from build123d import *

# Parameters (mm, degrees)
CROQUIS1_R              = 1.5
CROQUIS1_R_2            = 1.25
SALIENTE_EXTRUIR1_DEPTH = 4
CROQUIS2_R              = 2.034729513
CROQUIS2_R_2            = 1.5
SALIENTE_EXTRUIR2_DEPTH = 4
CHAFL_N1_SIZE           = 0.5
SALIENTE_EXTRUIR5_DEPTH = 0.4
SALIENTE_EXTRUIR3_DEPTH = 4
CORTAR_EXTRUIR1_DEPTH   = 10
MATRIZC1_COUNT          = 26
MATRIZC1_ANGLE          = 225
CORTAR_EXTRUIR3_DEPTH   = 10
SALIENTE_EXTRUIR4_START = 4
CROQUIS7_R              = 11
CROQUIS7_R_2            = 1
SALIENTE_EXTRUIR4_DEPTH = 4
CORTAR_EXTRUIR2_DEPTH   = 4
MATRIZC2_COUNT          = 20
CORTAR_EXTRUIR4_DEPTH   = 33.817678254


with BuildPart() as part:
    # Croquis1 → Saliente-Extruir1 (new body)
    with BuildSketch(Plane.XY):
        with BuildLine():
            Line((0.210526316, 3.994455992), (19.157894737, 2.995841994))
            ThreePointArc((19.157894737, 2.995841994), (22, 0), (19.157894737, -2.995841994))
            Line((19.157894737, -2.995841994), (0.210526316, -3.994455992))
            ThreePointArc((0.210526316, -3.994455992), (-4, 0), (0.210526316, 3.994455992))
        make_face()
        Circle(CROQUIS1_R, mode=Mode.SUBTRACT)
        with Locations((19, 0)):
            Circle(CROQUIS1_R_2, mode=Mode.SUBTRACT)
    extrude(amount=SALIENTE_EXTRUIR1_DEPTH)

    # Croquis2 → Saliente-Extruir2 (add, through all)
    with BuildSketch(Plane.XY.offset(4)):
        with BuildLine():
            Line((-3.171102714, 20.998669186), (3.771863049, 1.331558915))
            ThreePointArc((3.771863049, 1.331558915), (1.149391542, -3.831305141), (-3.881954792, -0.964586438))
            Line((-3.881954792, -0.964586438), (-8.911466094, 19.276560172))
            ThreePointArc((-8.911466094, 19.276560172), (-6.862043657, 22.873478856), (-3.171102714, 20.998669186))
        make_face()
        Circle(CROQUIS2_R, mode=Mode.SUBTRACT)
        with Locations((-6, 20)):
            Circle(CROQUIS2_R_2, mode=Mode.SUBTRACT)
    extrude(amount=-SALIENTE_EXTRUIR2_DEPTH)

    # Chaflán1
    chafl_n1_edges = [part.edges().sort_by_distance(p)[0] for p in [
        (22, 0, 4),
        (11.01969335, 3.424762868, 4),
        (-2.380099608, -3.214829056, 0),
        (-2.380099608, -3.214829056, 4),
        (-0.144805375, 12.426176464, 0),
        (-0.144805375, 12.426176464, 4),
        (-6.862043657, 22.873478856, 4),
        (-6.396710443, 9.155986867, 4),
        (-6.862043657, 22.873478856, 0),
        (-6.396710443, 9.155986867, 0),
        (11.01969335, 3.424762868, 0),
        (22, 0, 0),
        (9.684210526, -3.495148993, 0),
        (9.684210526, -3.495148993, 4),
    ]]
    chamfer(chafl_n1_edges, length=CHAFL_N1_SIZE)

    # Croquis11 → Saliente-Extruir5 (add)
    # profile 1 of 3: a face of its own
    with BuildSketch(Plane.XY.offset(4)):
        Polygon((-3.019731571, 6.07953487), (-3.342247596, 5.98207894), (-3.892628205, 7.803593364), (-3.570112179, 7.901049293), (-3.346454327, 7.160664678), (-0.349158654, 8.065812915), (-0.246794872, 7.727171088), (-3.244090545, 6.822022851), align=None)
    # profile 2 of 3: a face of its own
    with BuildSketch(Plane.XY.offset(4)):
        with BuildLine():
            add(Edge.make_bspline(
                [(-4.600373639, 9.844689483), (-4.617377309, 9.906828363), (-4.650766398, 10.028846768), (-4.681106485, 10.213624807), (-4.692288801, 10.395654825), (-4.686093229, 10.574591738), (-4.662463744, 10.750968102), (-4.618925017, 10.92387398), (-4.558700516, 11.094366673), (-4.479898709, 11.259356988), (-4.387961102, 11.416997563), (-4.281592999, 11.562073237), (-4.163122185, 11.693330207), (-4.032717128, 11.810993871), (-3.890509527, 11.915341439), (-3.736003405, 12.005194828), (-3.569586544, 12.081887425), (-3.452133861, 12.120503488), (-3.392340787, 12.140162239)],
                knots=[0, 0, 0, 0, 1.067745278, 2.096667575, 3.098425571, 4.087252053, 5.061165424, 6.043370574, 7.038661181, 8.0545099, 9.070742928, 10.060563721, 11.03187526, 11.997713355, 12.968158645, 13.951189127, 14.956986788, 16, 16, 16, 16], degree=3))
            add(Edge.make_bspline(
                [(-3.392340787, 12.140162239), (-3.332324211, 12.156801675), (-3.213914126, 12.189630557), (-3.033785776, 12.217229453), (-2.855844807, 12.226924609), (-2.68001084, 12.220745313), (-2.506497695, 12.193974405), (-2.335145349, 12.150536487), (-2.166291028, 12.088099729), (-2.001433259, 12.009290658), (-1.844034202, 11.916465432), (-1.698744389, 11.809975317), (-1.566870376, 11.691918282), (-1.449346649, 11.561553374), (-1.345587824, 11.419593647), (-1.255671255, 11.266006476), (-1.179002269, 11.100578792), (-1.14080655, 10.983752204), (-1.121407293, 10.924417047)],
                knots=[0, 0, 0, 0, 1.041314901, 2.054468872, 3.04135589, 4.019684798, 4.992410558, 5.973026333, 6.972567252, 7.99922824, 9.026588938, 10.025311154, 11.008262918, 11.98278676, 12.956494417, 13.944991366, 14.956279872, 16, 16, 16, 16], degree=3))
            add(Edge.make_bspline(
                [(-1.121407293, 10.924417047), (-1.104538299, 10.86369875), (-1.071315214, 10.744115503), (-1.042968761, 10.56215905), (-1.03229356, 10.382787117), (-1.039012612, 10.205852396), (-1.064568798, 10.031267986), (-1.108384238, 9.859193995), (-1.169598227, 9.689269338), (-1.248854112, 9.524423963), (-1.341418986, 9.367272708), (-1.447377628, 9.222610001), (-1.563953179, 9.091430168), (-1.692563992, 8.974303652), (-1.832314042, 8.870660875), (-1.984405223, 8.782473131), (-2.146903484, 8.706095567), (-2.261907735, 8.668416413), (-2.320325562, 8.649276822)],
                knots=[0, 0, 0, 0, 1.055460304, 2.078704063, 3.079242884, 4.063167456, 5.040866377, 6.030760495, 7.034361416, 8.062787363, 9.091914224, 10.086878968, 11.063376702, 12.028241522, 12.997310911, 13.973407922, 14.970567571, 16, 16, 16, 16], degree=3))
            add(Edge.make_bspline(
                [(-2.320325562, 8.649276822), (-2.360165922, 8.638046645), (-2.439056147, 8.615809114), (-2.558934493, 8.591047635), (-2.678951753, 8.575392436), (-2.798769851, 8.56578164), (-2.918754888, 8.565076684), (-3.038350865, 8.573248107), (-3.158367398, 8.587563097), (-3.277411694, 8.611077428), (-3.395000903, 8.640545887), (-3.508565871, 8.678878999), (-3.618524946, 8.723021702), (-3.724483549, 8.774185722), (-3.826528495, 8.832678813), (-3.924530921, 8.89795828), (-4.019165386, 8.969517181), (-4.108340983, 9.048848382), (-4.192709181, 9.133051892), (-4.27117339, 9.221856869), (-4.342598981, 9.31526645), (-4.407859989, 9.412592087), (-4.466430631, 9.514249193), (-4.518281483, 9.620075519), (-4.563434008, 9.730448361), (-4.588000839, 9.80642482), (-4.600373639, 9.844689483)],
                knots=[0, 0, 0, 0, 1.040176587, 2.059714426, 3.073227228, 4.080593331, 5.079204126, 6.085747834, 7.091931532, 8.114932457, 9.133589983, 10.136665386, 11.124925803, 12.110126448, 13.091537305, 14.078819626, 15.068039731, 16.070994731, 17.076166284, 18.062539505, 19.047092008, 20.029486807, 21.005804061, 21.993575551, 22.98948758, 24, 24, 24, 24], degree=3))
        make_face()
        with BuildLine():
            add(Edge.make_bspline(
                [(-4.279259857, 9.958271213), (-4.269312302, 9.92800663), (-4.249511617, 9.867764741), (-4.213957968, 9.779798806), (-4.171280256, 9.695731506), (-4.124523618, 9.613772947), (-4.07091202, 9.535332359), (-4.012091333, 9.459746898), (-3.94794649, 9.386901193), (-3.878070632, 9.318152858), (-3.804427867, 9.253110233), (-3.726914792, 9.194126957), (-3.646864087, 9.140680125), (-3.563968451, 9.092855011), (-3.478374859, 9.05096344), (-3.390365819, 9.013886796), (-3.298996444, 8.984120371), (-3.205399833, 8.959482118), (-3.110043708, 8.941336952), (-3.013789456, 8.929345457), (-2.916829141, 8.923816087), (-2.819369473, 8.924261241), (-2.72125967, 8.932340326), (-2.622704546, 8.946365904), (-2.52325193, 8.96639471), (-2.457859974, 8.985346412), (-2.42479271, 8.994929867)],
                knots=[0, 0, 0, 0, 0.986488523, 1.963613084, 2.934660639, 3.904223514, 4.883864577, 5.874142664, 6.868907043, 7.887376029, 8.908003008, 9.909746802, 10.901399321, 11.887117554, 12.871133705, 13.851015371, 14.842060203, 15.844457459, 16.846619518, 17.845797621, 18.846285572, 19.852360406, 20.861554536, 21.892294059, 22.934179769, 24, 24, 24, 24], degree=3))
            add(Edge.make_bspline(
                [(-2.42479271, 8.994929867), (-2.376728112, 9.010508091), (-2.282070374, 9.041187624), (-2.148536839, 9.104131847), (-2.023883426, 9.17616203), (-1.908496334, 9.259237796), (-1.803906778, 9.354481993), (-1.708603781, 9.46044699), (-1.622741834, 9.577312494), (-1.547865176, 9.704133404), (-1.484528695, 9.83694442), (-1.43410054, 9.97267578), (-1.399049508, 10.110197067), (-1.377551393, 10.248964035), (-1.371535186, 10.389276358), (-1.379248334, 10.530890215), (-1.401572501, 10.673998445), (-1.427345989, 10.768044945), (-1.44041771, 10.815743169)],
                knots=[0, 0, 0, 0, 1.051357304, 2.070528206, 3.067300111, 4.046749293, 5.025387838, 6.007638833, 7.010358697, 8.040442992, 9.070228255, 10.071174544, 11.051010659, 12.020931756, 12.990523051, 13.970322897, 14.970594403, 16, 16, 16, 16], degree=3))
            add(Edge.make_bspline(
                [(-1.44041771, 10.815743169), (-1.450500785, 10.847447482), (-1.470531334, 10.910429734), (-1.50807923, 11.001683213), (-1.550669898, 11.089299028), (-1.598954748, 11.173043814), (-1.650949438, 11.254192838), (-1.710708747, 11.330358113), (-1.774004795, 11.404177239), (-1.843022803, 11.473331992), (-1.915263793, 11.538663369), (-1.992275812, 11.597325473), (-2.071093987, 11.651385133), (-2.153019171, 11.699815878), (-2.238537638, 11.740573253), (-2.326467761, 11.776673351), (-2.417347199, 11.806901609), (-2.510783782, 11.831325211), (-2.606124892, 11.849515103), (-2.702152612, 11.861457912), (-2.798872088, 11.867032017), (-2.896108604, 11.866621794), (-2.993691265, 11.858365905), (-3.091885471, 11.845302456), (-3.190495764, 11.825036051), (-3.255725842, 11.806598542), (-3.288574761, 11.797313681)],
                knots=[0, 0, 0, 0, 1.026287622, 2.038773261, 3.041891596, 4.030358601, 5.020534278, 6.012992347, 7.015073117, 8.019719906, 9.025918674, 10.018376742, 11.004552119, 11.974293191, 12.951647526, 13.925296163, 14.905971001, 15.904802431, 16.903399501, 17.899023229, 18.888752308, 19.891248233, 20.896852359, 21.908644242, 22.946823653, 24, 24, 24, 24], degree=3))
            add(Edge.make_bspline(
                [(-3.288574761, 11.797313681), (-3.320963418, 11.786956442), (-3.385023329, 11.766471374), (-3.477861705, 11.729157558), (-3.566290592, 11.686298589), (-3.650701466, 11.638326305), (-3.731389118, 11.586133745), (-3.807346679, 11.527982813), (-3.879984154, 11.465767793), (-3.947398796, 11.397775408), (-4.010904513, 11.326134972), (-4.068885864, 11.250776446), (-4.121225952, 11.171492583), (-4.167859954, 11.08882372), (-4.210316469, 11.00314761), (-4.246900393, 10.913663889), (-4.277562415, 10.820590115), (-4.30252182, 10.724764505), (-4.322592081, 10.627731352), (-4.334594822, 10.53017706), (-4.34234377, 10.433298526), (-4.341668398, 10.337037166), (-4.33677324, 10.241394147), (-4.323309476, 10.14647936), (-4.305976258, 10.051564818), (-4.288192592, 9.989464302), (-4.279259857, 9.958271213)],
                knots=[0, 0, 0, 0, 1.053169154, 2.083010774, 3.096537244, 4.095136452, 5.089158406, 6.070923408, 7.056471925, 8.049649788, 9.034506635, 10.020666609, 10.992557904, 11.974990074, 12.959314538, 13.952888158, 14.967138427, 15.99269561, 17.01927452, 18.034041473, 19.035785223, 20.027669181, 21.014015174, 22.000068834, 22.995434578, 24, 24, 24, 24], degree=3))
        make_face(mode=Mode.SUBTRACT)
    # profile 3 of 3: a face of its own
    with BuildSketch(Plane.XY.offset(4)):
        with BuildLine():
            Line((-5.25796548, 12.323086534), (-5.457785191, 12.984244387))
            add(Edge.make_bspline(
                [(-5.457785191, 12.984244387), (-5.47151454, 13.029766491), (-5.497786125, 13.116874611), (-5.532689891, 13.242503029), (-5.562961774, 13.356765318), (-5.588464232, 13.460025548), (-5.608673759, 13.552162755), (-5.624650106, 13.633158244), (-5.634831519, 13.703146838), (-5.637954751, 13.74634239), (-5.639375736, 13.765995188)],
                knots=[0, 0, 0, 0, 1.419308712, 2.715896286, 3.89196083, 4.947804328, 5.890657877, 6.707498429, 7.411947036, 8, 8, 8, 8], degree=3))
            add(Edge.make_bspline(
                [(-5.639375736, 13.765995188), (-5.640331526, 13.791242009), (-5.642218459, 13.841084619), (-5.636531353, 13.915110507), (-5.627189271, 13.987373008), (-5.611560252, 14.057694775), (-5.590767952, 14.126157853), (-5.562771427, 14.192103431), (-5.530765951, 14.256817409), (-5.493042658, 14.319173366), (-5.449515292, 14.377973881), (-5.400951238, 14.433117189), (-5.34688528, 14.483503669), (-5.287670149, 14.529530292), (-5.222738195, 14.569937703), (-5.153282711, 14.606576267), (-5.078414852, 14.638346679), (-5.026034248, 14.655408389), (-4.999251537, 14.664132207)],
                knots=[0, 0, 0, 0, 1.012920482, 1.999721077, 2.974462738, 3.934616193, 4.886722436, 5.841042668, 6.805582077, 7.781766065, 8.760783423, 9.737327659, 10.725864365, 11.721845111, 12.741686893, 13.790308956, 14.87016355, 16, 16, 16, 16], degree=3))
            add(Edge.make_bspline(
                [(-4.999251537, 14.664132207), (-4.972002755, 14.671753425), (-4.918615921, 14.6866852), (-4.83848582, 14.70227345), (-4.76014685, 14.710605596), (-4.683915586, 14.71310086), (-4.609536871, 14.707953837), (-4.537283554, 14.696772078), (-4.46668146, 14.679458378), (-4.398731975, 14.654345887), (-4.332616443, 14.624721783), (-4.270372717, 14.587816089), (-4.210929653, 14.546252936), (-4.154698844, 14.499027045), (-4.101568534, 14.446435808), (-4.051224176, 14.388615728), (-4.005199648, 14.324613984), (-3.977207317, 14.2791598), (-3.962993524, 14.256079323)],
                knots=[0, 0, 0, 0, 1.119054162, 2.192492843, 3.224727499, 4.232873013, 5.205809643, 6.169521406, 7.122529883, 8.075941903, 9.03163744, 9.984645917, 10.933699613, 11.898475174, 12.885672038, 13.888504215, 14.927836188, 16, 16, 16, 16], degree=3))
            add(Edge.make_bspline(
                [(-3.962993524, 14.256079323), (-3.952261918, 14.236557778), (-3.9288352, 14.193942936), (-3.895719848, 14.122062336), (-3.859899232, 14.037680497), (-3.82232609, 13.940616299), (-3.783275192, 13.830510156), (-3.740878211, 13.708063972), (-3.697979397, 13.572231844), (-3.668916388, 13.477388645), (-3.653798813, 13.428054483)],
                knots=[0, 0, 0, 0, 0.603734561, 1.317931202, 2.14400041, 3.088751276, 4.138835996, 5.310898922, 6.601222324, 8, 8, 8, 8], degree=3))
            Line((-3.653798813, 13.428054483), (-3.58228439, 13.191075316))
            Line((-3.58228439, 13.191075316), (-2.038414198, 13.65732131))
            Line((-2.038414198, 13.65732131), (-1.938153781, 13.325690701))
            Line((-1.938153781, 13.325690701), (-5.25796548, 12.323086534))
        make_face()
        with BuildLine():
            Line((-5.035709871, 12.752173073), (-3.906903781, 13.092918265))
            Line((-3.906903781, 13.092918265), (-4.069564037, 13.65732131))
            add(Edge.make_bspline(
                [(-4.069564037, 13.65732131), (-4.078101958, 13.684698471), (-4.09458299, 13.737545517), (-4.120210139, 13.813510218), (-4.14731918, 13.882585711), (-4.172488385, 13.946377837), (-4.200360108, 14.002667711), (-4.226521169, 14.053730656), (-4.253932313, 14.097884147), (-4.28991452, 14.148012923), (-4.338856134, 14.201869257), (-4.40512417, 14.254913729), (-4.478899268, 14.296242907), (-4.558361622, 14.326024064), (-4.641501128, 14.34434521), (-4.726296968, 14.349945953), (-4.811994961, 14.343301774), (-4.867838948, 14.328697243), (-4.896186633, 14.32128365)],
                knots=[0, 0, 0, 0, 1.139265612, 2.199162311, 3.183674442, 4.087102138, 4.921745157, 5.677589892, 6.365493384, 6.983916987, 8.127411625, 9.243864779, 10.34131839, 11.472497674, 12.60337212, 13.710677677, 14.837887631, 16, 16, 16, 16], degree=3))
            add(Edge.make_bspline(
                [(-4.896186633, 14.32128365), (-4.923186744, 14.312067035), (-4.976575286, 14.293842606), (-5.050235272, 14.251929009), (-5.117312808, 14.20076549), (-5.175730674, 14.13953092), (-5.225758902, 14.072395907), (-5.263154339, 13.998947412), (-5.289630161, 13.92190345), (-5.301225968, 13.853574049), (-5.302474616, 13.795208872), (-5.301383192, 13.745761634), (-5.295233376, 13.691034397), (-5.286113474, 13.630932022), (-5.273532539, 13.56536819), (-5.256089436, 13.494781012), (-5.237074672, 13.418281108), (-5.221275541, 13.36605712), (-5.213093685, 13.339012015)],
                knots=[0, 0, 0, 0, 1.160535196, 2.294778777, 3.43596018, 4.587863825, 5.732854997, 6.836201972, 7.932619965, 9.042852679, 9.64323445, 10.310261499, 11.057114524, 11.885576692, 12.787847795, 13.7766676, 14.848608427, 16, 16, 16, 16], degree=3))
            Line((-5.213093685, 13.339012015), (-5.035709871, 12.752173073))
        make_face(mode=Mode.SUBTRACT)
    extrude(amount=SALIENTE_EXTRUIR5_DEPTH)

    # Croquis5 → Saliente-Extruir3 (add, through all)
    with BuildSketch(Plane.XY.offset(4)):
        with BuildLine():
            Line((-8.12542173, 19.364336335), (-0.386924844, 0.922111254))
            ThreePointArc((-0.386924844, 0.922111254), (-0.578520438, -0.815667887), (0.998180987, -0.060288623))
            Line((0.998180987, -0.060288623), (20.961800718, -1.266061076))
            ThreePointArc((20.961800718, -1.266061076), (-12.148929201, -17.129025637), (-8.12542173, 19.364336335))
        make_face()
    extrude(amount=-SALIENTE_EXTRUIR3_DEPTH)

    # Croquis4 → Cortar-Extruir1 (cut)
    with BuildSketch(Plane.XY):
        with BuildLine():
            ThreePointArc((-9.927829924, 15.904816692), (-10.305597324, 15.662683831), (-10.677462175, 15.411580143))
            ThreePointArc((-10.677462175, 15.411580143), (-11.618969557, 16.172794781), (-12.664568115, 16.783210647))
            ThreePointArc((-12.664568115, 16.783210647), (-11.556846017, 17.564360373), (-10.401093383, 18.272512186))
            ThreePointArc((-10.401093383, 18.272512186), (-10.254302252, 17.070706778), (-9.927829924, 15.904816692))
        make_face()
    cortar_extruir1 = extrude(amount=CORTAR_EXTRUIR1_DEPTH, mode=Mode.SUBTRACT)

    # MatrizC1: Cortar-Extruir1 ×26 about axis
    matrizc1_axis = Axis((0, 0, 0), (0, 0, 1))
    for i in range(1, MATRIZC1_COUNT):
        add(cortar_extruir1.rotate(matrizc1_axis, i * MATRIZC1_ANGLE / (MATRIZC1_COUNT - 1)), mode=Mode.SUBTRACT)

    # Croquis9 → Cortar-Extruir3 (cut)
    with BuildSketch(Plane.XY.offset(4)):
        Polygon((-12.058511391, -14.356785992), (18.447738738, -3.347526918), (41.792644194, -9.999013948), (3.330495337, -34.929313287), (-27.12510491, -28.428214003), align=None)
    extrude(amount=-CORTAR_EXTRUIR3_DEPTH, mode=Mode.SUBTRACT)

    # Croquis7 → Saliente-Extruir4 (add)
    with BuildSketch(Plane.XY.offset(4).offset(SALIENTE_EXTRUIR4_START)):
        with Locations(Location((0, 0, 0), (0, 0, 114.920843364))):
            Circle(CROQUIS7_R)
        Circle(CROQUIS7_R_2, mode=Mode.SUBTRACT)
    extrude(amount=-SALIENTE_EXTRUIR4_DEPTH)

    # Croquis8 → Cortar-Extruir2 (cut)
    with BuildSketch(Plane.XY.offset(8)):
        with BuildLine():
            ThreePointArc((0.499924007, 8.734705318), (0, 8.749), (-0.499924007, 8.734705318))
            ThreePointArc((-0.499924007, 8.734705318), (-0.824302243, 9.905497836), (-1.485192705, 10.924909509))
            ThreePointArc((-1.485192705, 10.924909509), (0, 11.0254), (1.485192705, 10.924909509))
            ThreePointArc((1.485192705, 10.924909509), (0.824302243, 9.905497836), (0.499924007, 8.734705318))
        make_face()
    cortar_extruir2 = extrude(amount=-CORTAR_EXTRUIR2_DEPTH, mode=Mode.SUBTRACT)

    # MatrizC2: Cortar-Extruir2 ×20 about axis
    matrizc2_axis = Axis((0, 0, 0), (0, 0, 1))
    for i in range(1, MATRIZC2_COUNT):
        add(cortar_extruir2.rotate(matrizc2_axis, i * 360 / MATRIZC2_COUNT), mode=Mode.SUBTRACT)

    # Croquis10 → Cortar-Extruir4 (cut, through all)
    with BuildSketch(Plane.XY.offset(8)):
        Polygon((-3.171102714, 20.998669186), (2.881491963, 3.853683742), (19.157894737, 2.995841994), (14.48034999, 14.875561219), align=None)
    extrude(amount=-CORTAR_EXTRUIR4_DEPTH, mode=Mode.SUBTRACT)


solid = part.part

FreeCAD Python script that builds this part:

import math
import FreeCAD as App
import Part
import Sketcher
from FreeCAD import Vector


def edges_at(feature, points):
    """Names of the edges that pass closest to the given points."""
    edges = feature.Shape.Edges
    near = lambda p: min(range(len(edges)), key=lambda i: edges[i].distToShape(Part.Vertex(*p))[0])
    return sorted({f"Edge{near(p) + 1}" for p in points})


def add_polygon(sketch, points):
    """Adds a closed chain of lines whose ends are joined by coincident constraints."""
    first, n = sketch.GeometryCount, len(points)
    for a, b in zip(points, points[1:] + points[:1]):
        sketch.addGeometry(Part.LineSegment(App.Vector(*a, 0), App.Vector(*b, 0)), False)
    for i in range(n):
        sketch.addConstraint(Sketcher.Constraint("Coincident", first + i, 2, first + (i + 1) % n, 1))

doc = App.newDocument("Part")
params = doc.addObject("Spreadsheet::Sheet", "Params")
for row, (alias, value) in enumerate([
    ("sketch1_diameter", "3 mm"),
    ("sketch1_radius", "4 mm"),
    ("sketch1_radius2", "3 mm"),
    ("sketch1_diameter2", "2.5 mm"),
    ("pad1_length", "4 mm"),
    ("sketch2_diameter", "3 mm"),
    ("sketch2_radius", "3 mm"),
    ("sketch2_radius2", "4 mm"),
    ("pad2_length", "4 mm"),
    ("chamfer_size", "0.5 mm"),
    ("pad3_length", "0.4 mm"),
    ("sketch4_radius", "21 mm"),
    ("sketch4_radius2", "1 mm"),
    ("pad4_length", "4 mm"),
    ("sketch5_radius", "8 mm"),
    ("pocket1_length", "10 mm"),
    ("pocket2_length", "10 mm"),
    ("sketch7_diameter", "22 mm"),
    ("sketch7_diameter2", "2 mm"),
    ("pad5_length", "4 mm"),
    ("sketch8_radius", "4 mm"),
    ("pocket3_length", "4 mm"),
], start=1):
    params.set(f"A{row}", alias)
    params.set(f"B{row}", "=" + value)
    params.setAlias(f"B{row}", alias)

body = doc.addObject("PartDesign::Body", "Body")

sketch1 = doc.addObject("Sketcher::SketchObject", "Sketch")
body.addObject(sketch1)
sketch1.AttachmentSupport = (doc.XY_Plane, [""])
sketch1.MapMode = "FlatFace"
sketch1.addGeometry([
    Part.LineSegment(Vector(19.2, 3, 0), Vector(0.2, 4, 0)),
    Part.ArcOfCircle(Part.Circle(Vector(0, 0, 0), Vector(0, 0, 1), 4), math.radians(87), math.radians(273)),
    Part.LineSegment(Vector(0.2, -4, 0), Vector(19.2, -3, 0)),
    Part.ArcOfCircle(Part.Circle(Vector(19, 0, 0), Vector(0, 0, 1), 3), math.radians(-87), math.radians(87)),
    Part.Circle(Vector(19, 0, 0), Vector(0, 0, 1), 1.2),
    Part.Circle(Vector(0, 0, 0), Vector(0, 0, 1), 1.5),
], False)
sketch1.addConstraint([
    Sketcher.Constraint("Tangent", 0, 2, 1, 1),
    Sketcher.Constraint("Tangent", 1, 2, 2, 1),
    Sketcher.Constraint("Tangent", 2, 2, 3, 1),
    Sketcher.Constraint("Tangent", 3, 2, 0, 1),
    Sketcher.Constraint("Coincident", 1, 3, -1, 1),
    Sketcher.Constraint("Coincident", 5, 3, -1, 1),
    Sketcher.Constraint("Coincident", 4, 3, 3, 3),
    Sketcher.Constraint("PointOnObject", 3, 3, -1),
    Sketcher.Constraint("Diameter", 5, 3.0),
    Sketcher.Constraint("Radius", 1, 4.0),
    Sketcher.Constraint("Radius", 3, 3.0),
    Sketcher.Constraint("Diameter", 4, 2.5),
    Sketcher.Constraint("DistanceX", -1, 1, 3, 3, 19.0),
])
sketch1.setExpression("Constraints[8]", "Params.sketch1_diameter")
sketch1.setExpression("Constraints[9]", "Params.sketch1_radius")
sketch1.setExpression("Constraints[10]", "Params.sketch1_radius2")
sketch1.setExpression("Constraints[11]", "Params.sketch1_diameter2")
pad1 = doc.addObject("PartDesign::Pad", "Pad")
body.addObject(pad1)
pad1.Profile = sketch1
pad1.setExpression("Length", "Params.pad1_length")

sketch2 = doc.addObject("Sketcher::SketchObject", "Sketch001")
body.addObject(sketch2)
sketch2.AttachmentSupport = (doc.XY_Plane, [""])
sketch2.MapMode = "FlatFace"
sketch2.AttachmentOffset = App.Placement(Vector(0, 0, 4), App.Rotation())
sketch2.addGeometry([
    Part.LineSegment(Vector(3.8, 1.3, 0), Vector(-3.2, 21, 0)),
    Part.ArcOfCircle(Part.Circle(Vector(-6, 20, 0), Vector(0, 0, 1), 3), math.radians(19), math.radians(194)),
    Part.LineSegment(Vector(-8.9, 19.3, 0), Vector(-3.9, -1, 0)),
    Part.ArcOfCircle(Part.Circle(Vector(0, 0, 0), Vector(0, 0, 1), 4), math.radians(-166), math.radians(19)),
    Part.Circle(Vector(0, 0, 0), Vector(0, 0, 1), 2),
    Part.Circle(Vector(-6, 20, 0), Vector(0, 0, 1), 1.5),
], False)
sketch2.addConstraint([
    Sketcher.Constraint("Tangent", 0, 2, 1, 1),
    Sketcher.Constraint("Tangent", 1, 2, 2, 1),
    Sketcher.Constraint("Tangent", 2, 2, 3, 1),
    Sketcher.Constraint("Tangent", 3, 2, 0, 1),
    Sketcher.Constraint("Coincident", 3, 3, -1, 1),
    Sketcher.Constraint("Coincident", 4, 3, -1, 1),
    Sketcher.Constraint("Coincident", 5, 3, 1, 3),
    Sketcher.Constraint("Diameter", 5, 3.0),
    Sketcher.Constraint("Radius", 1, 3.0),
    Sketcher.Constraint("Radius", 3, 4.0),
    Sketcher.Constraint("DistanceX", 1, 3, -1, 1, 6.0),
    Sketcher.Constraint("DistanceY", -1, 1, 1, 3, 20.0),
    Sketcher.Constraint("Diameter", 4, 4.069459),
])
sketch2.setExpression("Constraints[7]", "Params.sketch2_diameter")
sketch2.setExpression("Constraints[8]", "Params.sketch2_radius")
sketch2.setExpression("Constraints[9]", "Params.sketch2_radius2")
pad2 = doc.addObject("PartDesign::Pad", "Pad001")
body.addObject(pad2)
pad2.Profile = sketch2
pad2.setExpression("Length", "Params.pad2_length")
pad2.Reversed = True
doc.recompute()

chamfer = doc.addObject("PartDesign::Chamfer", "Chamfer")
body.addObject(chamfer)
chamfer.Base = (pad2, edges_at(pad2, [
    (22, 0, 4),
    (11.02, 3.425, 4),
    (-2.38, -3.215, 0),
    (-2.38, -3.215, 4),
    (-0.145, 12.426, 0),
    (-0.145, 12.426, 4),
    (-6.862, 22.873, 4),
    (-6.397, 9.156, 4),
    (-6.862, 22.873, 0),
    (-6.397, 9.156, 0),
    (11.02, 3.425, 0),
    (22, 0, 0),
    (9.684, -3.495, 0),
    (9.684, -3.495, 4),
]))
chamfer.setExpression("Size", "Params.chamfer_size")

sketch3 = doc.addObject("Sketcher::SketchObject", "Sketch002")
body.addObject(sketch3)
sketch3.AttachmentSupport = (doc.XY_Plane, [""])
sketch3.MapMode = "FlatFace"
sketch3.AttachmentOffset = App.Placement(Vector(0, 0, 4), App.Rotation())
add_polygon(sketch3, [(-3.342248, 5.982079), (-3.019732, 6.079535), (-3.244091, 6.822023), (-0.246795, 7.727171), (-0.349159, 8.065813), (-3.346454, 7.160665), (-3.570112, 7.901049), (-3.892628, 7.803593)])
sketch3.addGeometry(Part.BSplineCurve([Vector(-4.600374, 9.844689, 0), Vector(-4.617377, 9.906828, 0), Vector(-4.650766, 10.028847, 0), Vector(-4.681106, 10.213625, 0), Vector(-4.692289, 10.395655, 0), Vector(-4.686093, 10.574592, 0), Vector(-4.662464, 10.750968, 0), Vector(-4.618925, 10.923874, 0), Vector(-4.558701, 11.094367, 0), Vector(-4.479899, 11.259357, 0), Vector(-4.387961, 11.416998, 0), Vector(-4.281593, 11.562073, 0), Vector(-4.163122, 11.69333, 0), Vector(-4.032717, 11.810994, 0), Vector(-3.89051, 11.915341, 0), Vector(-3.736003, 12.005195, 0), Vector(-3.569587, 12.081887, 0), Vector(-3.452134, 12.120503, 0), Vector(-3.392341, 12.140162, 0)], [4, 1, 1, 1, 1, 1, 1, 1, 1, 1, 1, 1, 1, 1, 1, 1, 4], [0, 1.067745278, 2.096667575, 3.098425571, 4.087252053, 5.061165424, 6.043370574, 7.038661181, 8.0545099, 9.070742928, 10.060563721, 11.03187526, 11.997713355, 12.968158645, 13.951189127, 14.956986788, 16], False, 3, [1, 1, 1, 1, 1, 1, 1, 1, 1, 1, 1, 1, 1, 1, 1, 1, 1, 1, 1], False), False)
sketch3.addGeometry(Part.BSplineCurve([Vector(-2.320326, 8.649277, 0), Vector(-2.360166, 8.638047, 0), Vector(-2.439056, 8.615809, 0), Vector(-2.558934, 8.591048, 0), Vector(-2.678952, 8.575392, 0), Vector(-2.79877, 8.565782, 0), Vector(-2.918755, 8.565077, 0), Vector(-3.038351, 8.573248, 0), Vector(-3.158367, 8.587563, 0), Vector(-3.277412, 8.611077, 0), Vector(-3.395001, 8.640546, 0), Vector(-3.508566, 8.678879, 0), Vector(-3.618525, 8.723022, 0), Vector(-3.724484, 8.774186, 0), Vector(-3.826528, 8.832679, 0), Vector(-3.924531, 8.897958, 0), Vector(-4.019165, 8.969517, 0), Vector(-4.108341, 9.048848, 0), Vector(-4.192709, 9.133052, 0), Vector(-4.271173, 9.221857, 0), Vector(-4.342599, 9.315266, 0), Vector(-4.40786, 9.412592, 0), Vector(-4.466431, 9.514249, 0), Vector(-4.518281, 9.620076, 0), Vector(-4.563434, 9.730448, 0), Vector(-4.588001, 9.806425, 0), Vector(-4.600374, 9.844689, 0)], [4, 1, 1, 1, 1, 1, 1, 1, 1, 1, 1, 1, 1, 1, 1, 1, 1, 1, 1, 1, 1, 1, 1, 1, 4], [0, 1.040176587, 2.059714426, 3.073227228, 4.080593331, 5.079204126, 6.085747834, 7.091931532, 8.114932457, 9.133589983, 10.136665386, 11.124925803, 12.110126448, 13.091537305, 14.078819626, 15.068039731, 16.070994731, 17.076166284, 18.062539505, 19.047092008, 20.029486807, 21.005804061, 21.993575551, 22.98948758, 24], False, 3, [1, 1, 1, 1, 1, 1, 1, 1, 1, 1, 1, 1, 1, 1, 1, 1, 1, 1, 1, 1, 1, 1, 1, 1, 1, 1, 1], False), False)
sketch3.addGeometry(Part.BSplineCurve([Vector(-1.121407, 10.924417, 0), Vector(-1.104538, 10.863699, 0), Vector(-1.071315, 10.744116, 0), Vector(-1.042969, 10.562159, 0), Vector(-1.032294, 10.382787, 0), Vector(-1.039013, 10.205852, 0), Vector(-1.064569, 10.031268, 0), Vector(-1.108384, 9.859194, 0), Vector(-1.169598, 9.689269, 0), Vector(-1.248854, 9.524424, 0), Vector(-1.341419, 9.367273, 0), Vector(-1.447378, 9.22261, 0), Vector(-1.563953, 9.09143, 0), Vector(-1.692564, 8.974304, 0), Vector(-1.832314, 8.870661, 0), Vector(-1.984405, 8.782473, 0), Vector(-2.146903, 8.706096, 0), Vector(-2.261908, 8.668416, 0), Vector(-2.320326, 8.649277, 0)], [4, 1, 1, 1, 1, 1, 1, 1, 1, 1, 1, 1, 1, 1, 1, 1, 4], [0, 1.055460304, 2.078704063, 3.079242884, 4.063167456, 5.040866377, 6.030760495, 7.034361416, 8.062787363, 9.091914224, 10.086878968, 11.063376702, 12.028241522, 12.997310911, 13.973407922, 14.970567571, 16], False, 3, [1, 1, 1, 1, 1, 1, 1, 1, 1, 1, 1, 1, 1, 1, 1, 1, 1, 1, 1], False), False)
sketch3.addGeometry(Part.BSplineCurve([Vector(-3.392341, 12.140162, 0), Vector(-3.332324, 12.156802, 0), Vector(-3.213914, 12.189631, 0), Vector(-3.033786, 12.217229, 0), Vector(-2.855845, 12.226925, 0), Vector(-2.680011, 12.220745, 0), Vector(-2.506498, 12.193974, 0), Vector(-2.335145, 12.150536, 0), Vector(-2.166291, 12.0881, 0), Vector(-2.001433, 12.009291, 0), Vector(-1.844034, 11.916465, 0), Vector(-1.698744, 11.809975, 0), Vector(-1.56687, 11.691918, 0), Vector(-1.449347, 11.561553, 0), Vector(-1.345588, 11.419594, 0), Vector(-1.255671, 11.266006, 0), Vector(-1.179002, 11.100579, 0), Vector(-1.140807, 10.983752, 0), Vector(-1.121407, 10.924417, 0)], [4, 1, 1, 1, 1, 1, 1, 1, 1, 1, 1, 1, 1, 1, 1, 1, 4], [0, 1.041314901, 2.054468872, 3.04135589, 4.019684798, 4.992410558, 5.973026333, 6.972567252, 7.99922824, 9.026588938, 10.025311154, 11.008262918, 11.98278676, 12.956494417, 13.944991366, 14.956279872, 16], False, 3, [1, 1, 1, 1, 1, 1, 1, 1, 1, 1, 1, 1, 1, 1, 1, 1, 1, 1, 1], False), False)
sketch3.addGeometry(Part.BSplineCurve([Vector(-3.288575, 11.797314, 0), Vector(-3.320963, 11.786956, 0), Vector(-3.385023, 11.766471, 0), Vector(-3.477862, 11.729158, 0), Vector(-3.566291, 11.686299, 0), Vector(-3.650701, 11.638326, 0), Vector(-3.731389, 11.586134, 0), Vector(-3.807347, 11.527983, 0), Vector(-3.879984, 11.465768, 0), Vector(-3.947399, 11.397775, 0), Vector(-4.010905, 11.326135, 0), Vector(-4.068886, 11.250776, 0), Vector(-4.121226, 11.171493, 0), Vector(-4.16786, 11.088824, 0), Vector(-4.210316, 11.003148, 0), Vector(-4.2469, 10.913664, 0), Vector(-4.277562, 10.82059, 0), Vector(-4.302522, 10.724765, 0), Vector(-4.322592, 10.627731, 0), Vector(-4.334595, 10.530177, 0), Vector(-4.342344, 10.433299, 0), Vector(-4.341668, 10.337037, 0), Vector(-4.336773, 10.241394, 0), Vector(-4.323309, 10.146479, 0), Vector(-4.305976, 10.051565, 0), Vector(-4.288193, 9.989464, 0), Vector(-4.27926, 9.958271, 0)], [4, 1, 1, 1, 1, 1, 1, 1, 1, 1, 1, 1, 1, 1, 1, 1, 1, 1, 1, 1, 1, 1, 1, 1, 4], [0, 1.053169154, 2.083010774, 3.096537244, 4.095136452, 5.089158406, 6.070923408, 7.056471925, 8.049649788, 9.034506635, 10.020666609, 10.992557904, 11.974990074, 12.959314538, 13.952888158, 14.967138427, 15.99269561, 17.01927452, 18.034041473, 19.035785223, 20.027669181, 21.014015174, 22.000068834, 22.995434578, 24], False, 3, [1, 1, 1, 1, 1, 1, 1, 1, 1, 1, 1, 1, 1, 1, 1, 1, 1, 1, 1, 1, 1, 1, 1, 1, 1, 1, 1], False), False)
sketch3.addGeometry(Part.BSplineCurve([Vector(-1.440418, 10.815743, 0), Vector(-1.450501, 10.847447, 0), Vector(-1.470531, 10.91043, 0), Vector(-1.508079, 11.001683, 0), Vector(-1.55067, 11.089299, 0), Vector(-1.598955, 11.173044, 0), Vector(-1.650949, 11.254193, 0), Vector(-1.710709, 11.330358, 0), Vector(-1.774005, 11.404177, 0), Vector(-1.843023, 11.473332, 0), Vector(-1.915264, 11.538663, 0), Vector(-1.992276, 11.597325, 0), Vector(-2.071094, 11.651385, 0), Vector(-2.153019, 11.699816, 0), Vector(-2.238538, 11.740573, 0), Vector(-2.326468, 11.776673, 0), Vector(-2.417347, 11.806902, 0), Vector(-2.510784, 11.831325, 0), Vector(-2.606125, 11.849515, 0), Vector(-2.702153, 11.861458, 0), Vector(-2.798872, 11.867032, 0), Vector(-2.896109, 11.866622, 0), Vector(-2.993691, 11.858366, 0), Vector(-3.091885, 11.845302, 0), Vector(-3.190496, 11.825036, 0), Vector(-3.255726, 11.806599, 0), Vector(-3.288575, 11.797314, 0)], [4, 1, 1, 1, 1, 1, 1, 1, 1, 1, 1, 1, 1, 1, 1, 1, 1, 1, 1, 1, 1, 1, 1, 1, 4], [0, 1.026287622, 2.038773261, 3.041891596, 4.030358601, 5.020534278, 6.012992347, 7.015073117, 8.019719906, 9.025918674, 10.018376742, 11.004552119, 11.974293191, 12.951647526, 13.925296163, 14.905971001, 15.904802431, 16.903399501, 17.899023229, 18.888752308, 19.891248233, 20.896852359, 21.908644242, 22.946823653, 24], False, 3, [1, 1, 1, 1, 1, 1, 1, 1, 1, 1, 1, 1, 1, 1, 1, 1, 1, 1, 1, 1, 1, 1, 1, 1, 1, 1, 1], False), False)
sketch3.addGeometry(Part.BSplineCurve([Vector(-2.424793, 8.99493, 0), Vector(-2.376728, 9.010508, 0), Vector(-2.28207, 9.041188, 0), Vector(-2.148537, 9.104132, 0), Vector(-2.023883, 9.176162, 0), Vector(-1.908496, 9.259238, 0), Vector(-1.803907, 9.354482, 0), Vector(-1.708604, 9.460447, 0), Vector(-1.622742, 9.577312, 0), Vector(-1.547865, 9.704133, 0), Vector(-1.484529, 9.836944, 0), Vector(-1.434101, 9.972676, 0), Vector(-1.39905, 10.110197, 0), Vector(-1.377551, 10.248964, 0), Vector(-1.371535, 10.389276, 0), Vector(-1.379248, 10.53089, 0), Vector(-1.401573, 10.673998, 0), Vector(-1.427346, 10.768045, 0), Vector(-1.440418, 10.815743, 0)], [4, 1, 1, 1, 1, 1, 1, 1, 1, 1, 1, 1, 1, 1, 1, 1, 4], [0, 1.051357304, 2.070528206, 3.067300111, 4.046749293, 5.025387838, 6.007638833, 7.010358697, 8.040442992, 9.070228255, 10.071174544, 11.051010659, 12.020931756, 12.990523051, 13.970322897, 14.970594403, 16], False, 3, [1, 1, 1, 1, 1, 1, 1, 1, 1, 1, 1, 1, 1, 1, 1, 1, 1, 1, 1], False), False)
sketch3.addGeometry(Part.BSplineCurve([Vector(-4.27926, 9.958271, 0), Vector(-4.269312, 9.928007, 0), Vector(-4.249512, 9.867765, 0), Vector(-4.213958, 9.779799, 0), Vector(-4.17128, 9.695732, 0), Vector(-4.124524, 9.613773, 0), Vector(-4.070912, 9.535332, 0), Vector(-4.012091, 9.459747, 0), Vector(-3.947946, 9.386901, 0), Vector(-3.878071, 9.318153, 0), Vector(-3.804428, 9.25311, 0), Vector(-3.726915, 9.194127, 0), Vector(-3.646864, 9.14068, 0), Vector(-3.563968, 9.092855, 0), Vector(-3.478375, 9.050963, 0), Vector(-3.390366, 9.013887, 0), Vector(-3.298996, 8.98412, 0), Vector(-3.2054, 8.959482, 0), Vector(-3.110044, 8.941337, 0), Vector(-3.013789, 8.929345, 0), Vector(-2.916829, 8.923816, 0), Vector(-2.819369, 8.924261, 0), Vector(-2.72126, 8.93234, 0), Vector(-2.622705, 8.946366, 0), Vector(-2.523252, 8.966395, 0), Vector(-2.45786, 8.985346, 0), Vector(-2.424793, 8.99493, 0)], [4, 1, 1, 1, 1, 1, 1, 1, 1, 1, 1, 1, 1, 1, 1, 1, 1, 1, 1, 1, 1, 1, 1, 1, 4], [0, 0.986488523, 1.963613084, 2.934660639, 3.904223514, 4.883864577, 5.874142664, 6.868907043, 7.887376029, 8.908003008, 9.909746802, 10.901399321, 11.887117554, 12.871133705, 13.851015371, 14.842060203, 15.844457459, 16.846619518, 17.845797621, 18.846285572, 19.852360406, 20.861554536, 21.892294059, 22.934179769, 24], False, 3, [1, 1, 1, 1, 1, 1, 1, 1, 1, 1, 1, 1, 1, 1, 1, 1, 1, 1, 1, 1, 1, 1, 1, 1, 1, 1, 1], False), False)
sketch3.addGeometry(Part.LineSegment(Vector(-5.457785, 12.984244, 0), Vector(-5.257965, 12.323087, 0)), False)
sketch3.addGeometry(Part.LineSegment(Vector(-5.257965, 12.323087, 0), Vector(-1.938154, 13.325691, 0)), False)
sketch3.addGeometry(Part.LineSegment(Vector(-1.938154, 13.325691, 0), Vector(-2.038414, 13.657321, 0)), False)
sketch3.addGeometry(Part.LineSegment(Vector(-2.038414, 13.657321, 0), Vector(-3.582284, 13.191075, 0)), False)
sketch3.addGeometry(Part.LineSegment(Vector(-3.582284, 13.191075, 0), Vector(-3.653799, 13.428054, 0)), False)
sketch3.addGeometry(Part.BSplineCurve([Vector(-3.962994, 14.256079, 0), Vector(-3.952262, 14.236558, 0), Vector(-3.928835, 14.193943, 0), Vector(-3.89572, 14.122062, 0), Vector(-3.859899, 14.03768, 0), Vector(-3.822326, 13.940616, 0), Vector(-3.783275, 13.83051, 0), Vector(-3.740878, 13.708064, 0), Vector(-3.697979, 13.572232, 0), Vector(-3.668916, 13.477389, 0), Vector(-3.653799, 13.428054, 0)], [4, 1, 1, 1, 1, 1, 1, 1, 4], [0, 0.603734561, 1.317931202, 2.14400041, 3.088751276, 4.138835996, 5.310898922, 6.601222324, 8], False, 3, [1, 1, 1, 1, 1, 1, 1, 1, 1, 1, 1], False), False)
sketch3.addGeometry(Part.BSplineCurve([Vector(-4.999252, 14.664132, 0), Vector(-4.972003, 14.671753, 0), Vector(-4.918616, 14.686685, 0), Vector(-4.838486, 14.702273, 0), Vector(-4.760147, 14.710606, 0), Vector(-4.683916, 14.713101, 0), Vector(-4.609537, 14.707954, 0), Vector(-4.537284, 14.696772, 0), Vector(-4.466681, 14.679458, 0), Vector(-4.398732, 14.654346, 0), Vector(-4.332616, 14.624722, 0), Vector(-4.270373, 14.587816, 0), Vector(-4.21093, 14.546253, 0), Vector(-4.154699, 14.499027, 0), Vector(-4.101569, 14.446436, 0), Vector(-4.051224, 14.388616, 0), Vector(-4.0052, 14.324614, 0), Vector(-3.977207, 14.27916, 0), Vector(-3.962994, 14.256079, 0)], [4, 1, 1, 1, 1, 1, 1, 1, 1, 1, 1, 1, 1, 1, 1, 1, 4], [0, 1.119054162, 2.192492843, 3.224727499, 4.232873013, 5.205809643, 6.169521406, 7.122529883, 8.075941903, 9.03163744, 9.984645917, 10.933699613, 11.898475174, 12.885672038, 13.888504215, 14.927836188, 16], False, 3, [1, 1, 1, 1, 1, 1, 1, 1, 1, 1, 1, 1, 1, 1, 1, 1, 1, 1, 1], False), False)
sketch3.addGeometry(Part.BSplineCurve([Vector(-5.639376, 13.765995, 0), Vector(-5.640332, 13.791242, 0), Vector(-5.642218, 13.841085, 0), Vector(-5.636531, 13.915111, 0), Vector(-5.627189, 13.987373, 0), Vector(-5.61156, 14.057695, 0), Vector(-5.590768, 14.126158, 0), Vector(-5.562771, 14.192103, 0), Vector(-5.530766, 14.256817, 0), Vector(-5.493043, 14.319173, 0), Vector(-5.449515, 14.377974, 0), Vector(-5.400951, 14.433117, 0), Vector(-5.346885, 14.483504, 0), Vector(-5.28767, 14.52953, 0), Vector(-5.222738, 14.569938, 0), Vector(-5.153283, 14.606576, 0), Vector(-5.078415, 14.638347, 0), Vector(-5.026034, 14.655408, 0), Vector(-4.999252, 14.664132, 0)], [4, 1, 1, 1, 1, 1, 1, 1, 1, 1, 1, 1, 1, 1, 1, 1, 4], [0, 1.012920482, 1.999721077, 2.974462738, 3.934616193, 4.886722436, 5.841042668, 6.805582077, 7.781766065, 8.760783423, 9.737327659, 10.725864365, 11.721845111, 12.741686893, 13.790308956, 14.87016355, 16], False, 3, [1, 1, 1, 1, 1, 1, 1, 1, 1, 1, 1, 1, 1, 1, 1, 1, 1, 1, 1], False), False)
sketch3.addGeometry(Part.BSplineCurve([Vector(-5.457785, 12.984244, 0), Vector(-5.471515, 13.029766, 0), Vector(-5.497786, 13.116875, 0), Vector(-5.53269, 13.242503, 0), Vector(-5.562962, 13.356765, 0), Vector(-5.588464, 13.460026, 0), Vector(-5.608674, 13.552163, 0), Vector(-5.62465, 13.633158, 0), Vector(-5.634832, 13.703147, 0), Vector(-5.637955, 13.746342, 0), Vector(-5.639376, 13.765995, 0)], [4, 1, 1, 1, 1, 1, 1, 1, 4], [0, 1.419308712, 2.715896286, 3.89196083, 4.947804328, 5.890657877, 6.707498429, 7.411947036, 8], False, 3, [1, 1, 1, 1, 1, 1, 1, 1, 1, 1, 1], False), False)
sketch3.addGeometry(Part.LineSegment(Vector(-5.03571, 12.752173, 0), Vector(-5.213094, 13.339012, 0)), False)
sketch3.addGeometry(Part.BSplineCurve([Vector(-4.896187, 14.321284, 0), Vector(-4.923187, 14.312067, 0), Vector(-4.976575, 14.293843, 0), Vector(-5.050235, 14.251929, 0), Vector(-5.117313, 14.200765, 0), Vector(-5.175731, 14.139531, 0), Vector(-5.225759, 14.072396, 0), Vector(-5.263154, 13.998947, 0), Vector(-5.28963, 13.921903, 0), Vector(-5.301226, 13.853574, 0), Vector(-5.302475, 13.795209, 0), Vector(-5.301383, 13.745762, 0), Vector(-5.295233, 13.691034, 0), Vector(-5.286113, 13.630932, 0), Vector(-5.273533, 13.565368, 0), Vector(-5.256089, 13.494781, 0), Vector(-5.237075, 13.418281, 0), Vector(-5.221276, 13.366057, 0), Vector(-5.213094, 13.339012, 0)], [4, 1, 1, 1, 1, 1, 1, 1, 1, 1, 1, 1, 1, 1, 1, 1, 4], [0, 1.160535196, 2.294778777, 3.43596018, 4.587863825, 5.732854997, 6.836201972, 7.932619965, 9.042852679, 9.64323445, 10.310261499, 11.057114524, 11.885576692, 12.787847795, 13.7766676, 14.848608427, 16], False, 3, [1, 1, 1, 1, 1, 1, 1, 1, 1, 1, 1, 1, 1, 1, 1, 1, 1, 1, 1], False), False)
sketch3.addGeometry(Part.BSplineCurve([Vector(-4.069564, 13.657321, 0), Vector(-4.078102, 13.684698, 0), Vector(-4.094583, 13.737546, 0), Vector(-4.12021, 13.81351, 0), Vector(-4.147319, 13.882586, 0), Vector(-4.172488, 13.946378, 0), Vector(-4.20036, 14.002668, 0), Vector(-4.226521, 14.053731, 0), Vector(-4.253932, 14.097884, 0), Vector(-4.289915, 14.148013, 0), Vector(-4.338856, 14.201869, 0), Vector(-4.405124, 14.254914, 0), Vector(-4.478899, 14.296243, 0), Vector(-4.558362, 14.326024, 0), Vector(-4.641501, 14.344345, 0), Vector(-4.726297, 14.349946, 0), Vector(-4.811995, 14.343302, 0), Vector(-4.867839, 14.328697, 0), Vector(-4.896187, 14.321284, 0)], [4, 1, 1, 1, 1, 1, 1, 1, 1, 1, 1, 1, 1, 1, 1, 1, 4], [0, 1.139265612, 2.199162311, 3.183674442, 4.087102138, 4.921745157, 5.677589892, 6.365493384, 6.983916987, 8.127411625, 9.243864779, 10.34131839, 11.472497674, 12.60337212, 13.710677677, 14.837887631, 16], False, 3, [1, 1, 1, 1, 1, 1, 1, 1, 1, 1, 1, 1, 1, 1, 1, 1, 1, 1, 1], False), False)
sketch3.addGeometry(Part.LineSegment(Vector(-4.069564, 13.657321, 0), Vector(-3.906904, 13.092918, 0)), False)
sketch3.addGeometry(Part.LineSegment(Vector(-3.906904, 13.092918, 0), Vector(-5.03571, 12.752173, 0)), False)
sketch3.addConstraint([
    Sketcher.Constraint("Block", 8),
    Sketcher.Constraint("Block", 9),
    Sketcher.Constraint("Block", 10),
    Sketcher.Constraint("Block", 11),
    Sketcher.Constraint("Block", 12),
    Sketcher.Constraint("Block", 13),
    Sketcher.Constraint("Block", 14),
    Sketcher.Constraint("Block", 15),
    Sketcher.Constraint("Block", 21),
    Sketcher.Constraint("Block", 22),
    Sketcher.Constraint("Block", 23),
    Sketcher.Constraint("Block", 24),
    Sketcher.Constraint("Block", 26),
    Sketcher.Constraint("Block", 27),
    Sketcher.Constraint("Coincident", 16, 2, 17, 1),
    Sketcher.Constraint("Coincident", 17, 2, 18, 1),
    Sketcher.Constraint("Coincident", 18, 2, 19, 1),
    Sketcher.Constraint("Coincident", 19, 2, 20, 1),
    Sketcher.Constraint("Coincident", 20, 2, 21, 2),
    Sketcher.Constraint("Coincident", 24, 1, 16, 1),
    Sketcher.Constraint("Coincident", 25, 2, 26, 2),
    Sketcher.Constraint("Coincident", 27, 1, 28, 1),
    Sketcher.Constraint("Coincident", 28, 2, 29, 1),
    Sketcher.Constraint("Coincident", 29, 2, 25, 1),
    Sketcher.Constraint("Perpendicular", 0, 1),
    Sketcher.Constraint("Parallel", 2, 4),
    Sketcher.Constraint("Perpendicular", 1, 6),
    Sketcher.Constraint("Equal", 2, 4),
    Sketcher.Constraint("Equal", 0, 6),
    Sketcher.Constraint("Distance", 0, 0.336919),
    Sketcher.Constraint("Distance", 5, 0.773429),
    Sketcher.Constraint("Distance", 7, 1.902849),
    Sketcher.Constraint("Distance", 25, 0.613062),
    Sketcher.Constraint("DistanceX", 0, 2, -1, 1, 3.019732),
    Sketcher.Constraint("DistanceX", 1, 2, -1, 1, 3.244091),
    Sketcher.Constraint("DistanceY", -1, 1, 2, 2, 7.727171),
    Sketcher.Constraint("DistanceX", 3, 2, -1, 1, 0.349159),
    Sketcher.Constraint("DistanceY", -1, 1, 5, 2, 7.901049),
    Sketcher.Constraint("DistanceX", 6, 2, -1, 1, 3.892628),
    Sketcher.Constraint("DistanceY", -1, 1, 7, 2, 5.982079),
    Sketcher.Constraint("DistanceY", -1, 1, 17, 2, 13.325691),
    Sketcher.Constraint("DistanceY", -1, 1, 18, 2, 13.657321),
    Sketcher.Constraint("DistanceY", -1, 1, 28, 2, 13.092918),
    Sketcher.Constraint("DistanceX", 29, 2, -1, 1, 5.03571),
    Sketcher.Constraint("DistanceY", 2, 2, 3, 2, 0.338642),
    Sketcher.Constraint("DistanceX", 16, 2, 4, 2, 1.911511),
    Sketcher.Constraint("DistanceY", 4, 2, 16, 2, 5.162422),
    Sketcher.Constraint("DistanceX", 16, 2, 17, 2, 3.319812),
    Sketcher.Constraint("DistanceX", 18, 2, 17, 2, 0.10026),
    Sketcher.Constraint("DistanceX", 19, 2, 18, 2, 1.54387),
    Sketcher.Constraint("DistanceY", 16, 2, 19, 2, 0.867989),
    Sketcher.Constraint("DistanceX", 28, 2, 19, 2, 0.324619),
])
pad3 = doc.addObject("PartDesign::Pad", "Pad002")
body.addObject(pad3)
pad3.Profile = sketch3
pad3.setExpression("Length", "Params.pad3_length")

sketch4 = doc.addObject("Sketcher::SketchObject", "Sketch003")
body.addObject(sketch4)
sketch4.AttachmentSupport = (doc.XY_Plane, [""])
sketch4.MapMode = "FlatFace"
sketch4.AttachmentOffset = App.Placement(Vector(0, 0, 4), App.Rotation())
sketch4.addGeometry([
    Part.LineSegment(Vector(-0.4, 0.9, 0), Vector(-8.1, 19.4, 0)),
    Part.ArcOfCircle(Part.Circle(Vector(0, 0, 0), Vector(0, 0, 1), 21), math.radians(113), math.radians(357)),
    Part.LineSegment(Vector(21, -1.3, 0), Vector(1, -0.1, 0)),
    Part.ArcOfCircle(Part.Circle(Vector(0, 0, 0), Vector(0, 0, 1), 1), math.radians(113), math.radians(357)),
], False)
sketch4.addConstraint([
    Sketcher.Constraint("Coincident", 0, 2, 1, 1),
    Sketcher.Constraint("Coincident", 1, 2, 2, 1),
    Sketcher.Constraint("Coincident", 2, 2, 3, 2),
    Sketcher.Constraint("Coincident", 3, 1, 0, 1),
    Sketcher.Constraint("Coincident", 1, 3, -1, 1),
    Sketcher.Constraint("Coincident", 3, 3, -1, 1),
    Sketcher.Constraint("Radius", 1, 21.0),
    Sketcher.Constraint("Radius", 3, 1.0),
    Sketcher.Constraint("DistanceX", -1, 1, 1, 2, 20.961801),
    Sketcher.Constraint("DistanceY", 2, 2, 3, 1, 0.9824),
    Sketcher.Constraint("DistanceX", 0, 2, -1, 1, 8.125422),
    Sketcher.Constraint("DistanceX", -1, 1, 2, 2, 0.998181),
])
sketch4.setExpression("Constraints[6]", "Params.sketch4_radius")
sketch4.setExpression("Constraints[7]", "Params.sketch4_radius2")
pad4 = doc.addObject("PartDesign::Pad", "Pad003")
body.addObject(pad4)
pad4.Profile = sketch4
pad4.setExpression("Length", "Params.pad4_length")
pad4.Reversed = True

sketch5 = doc.addObject("Sketcher::SketchObject", "Sketch004")
body.addObject(sketch5)
sketch5.AttachmentSupport = (doc.XY_Plane, [""])
sketch5.MapMode = "FlatFace"
sketch5.addGeometry([
    Part.ArcOfCircle(Part.Circle(Vector(0, 0, 0), Vector(0, 0, 1), 18.7), math.radians(121.97), math.radians(124.72)),
    Part.ArcOfCircle(Part.Circle(Vector(-2.4, 18.6, 0), Vector(0, 0, 1), 8), math.radians(-177.38), math.radians(-160.02)),
    Part.ArcOfCircle(Part.Circle(Vector(0, 0, 0), Vector(0, 0, 1), 21), math.radians(119.65), math.radians(127.04)),
    Part.ArcOfCircle(Part.Circle(Vector(-16.2, 9.6, 0), Vector(0, 0, 1), 8), math.radians(46.7), math.radians(64.06)),
], False)
sketch5.addConstraint([
    Sketcher.Constraint("Coincident", 0, 1, 1, 2),
    Sketcher.Constraint("Coincident", 1, 1, 2, 1),
    Sketcher.Constraint("Coincident", 2, 2, 3, 2),
    Sketcher.Constraint("Coincident", 3, 1, 0, 2),
    Sketcher.Constraint("Coincident", 0, 3, -1, 1),
    Sketcher.Constraint("Coincident", 2, 3, -1, 1),
    Sketcher.Constraint("Equal", 1, 3),
    Sketcher.Constraint("Radius", 1, 8.0),
    Sketcher.Constraint("Radius", 0, 18.749001),
    Sketcher.Constraint("Radius", 2, 21.0254),
    Sketcher.Constraint("DistanceY", 2, 2, 1, 1, 1.489302),
    Sketcher.Constraint("DistanceX", 1, 3, -1, 1, 2.409481),
    Sketcher.Constraint("DistanceY", -1, 1, 3, 3, 9.588971),
    Sketcher.Constraint("DistanceX", 0, 1, -1, 1, 9.92783),
])
sketch5.setExpression("Constraints[7]", "Params.sketch5_radius")
pocket1 = doc.addObject("PartDesign::Pocket", "Pocket")
body.addObject(pocket1)
pocket1.Profile = sketch5
pocket1.setExpression("Length", "Params.pocket1_length")
pocket1.Reversed = True
doc.recompute()

polarpattern = doc.addObject("PartDesign::PolarPattern", "PolarPattern")
body.addObject(polarpattern)
polarpattern.Originals = [pocket1]
polarpattern.Axis = (doc.Z_Axis, [""])
polarpattern.Angle = 225
polarpattern.Occurrences = 26
body.Tip = polarpattern

sketch6 = doc.addObject("Sketcher::SketchObject", "Sketch005")
body.addObject(sketch6)
sketch6.AttachmentSupport = (doc.XY_Plane, [""])
sketch6.MapMode = "FlatFace"
sketch6.AttachmentOffset = App.Placement(Vector(0, 0, 4), App.Rotation())
add_polygon(sketch6, [(18, -3), (-12, -14), (-27, -28), (3, -35), (42, -10)])
sketch6.addConstraint([
    Sketcher.Constraint("DistanceX", 1, 2, 2, 2, 30.4556),
    Sketcher.Constraint("DistanceY", 2, 2, 1, 2, 6.501099),
    Sketcher.Constraint("DistanceY", 2, 2, 3, 2, 24.930299),
    Sketcher.Constraint("DistanceX", 0, 2, -1, 1, 12.058511),
    Sketcher.Constraint("DistanceX", -1, 1, 4, 2, 18.447739),
    Sketcher.Constraint("DistanceY", 1, 2, 0, 2, 14.071428),
    Sketcher.Constraint("DistanceX", 2, 2, 3, 2, 38.462149),
    Sketcher.Constraint("DistanceY", 0, 2, 4, 2, 11.009259),
    Sketcher.Constraint("Distance", 1, 20.615706),
    Sketcher.Constraint("DistanceY", 0, 2, -1, 1, 14.356786),
])
pocket2 = doc.addObject("PartDesign::Pocket", "Pocket001")
body.addObject(pocket2)
pocket2.Profile = sketch6
pocket2.setExpression("Length", "Params.pocket2_length")

sketch7 = doc.addObject("Sketcher::SketchObject", "Sketch006")
body.addObject(sketch7)
sketch7.AttachmentSupport = (doc.XY_Plane, [""])
sketch7.MapMode = "FlatFace"
sketch7.AttachmentOffset = App.Placement(Vector(0, 0, 8), App.Rotation())
sketch7.addGeometry([
    Part.Circle(Vector(0, 0, 0), Vector(0, 0, 1), 11),
    Part.Circle(Vector(0, 0, 0), Vector(0, 0, 1), 1),
], False)
sketch7.addConstraint([
    Sketcher.Constraint("Coincident", 0, 3, -1, 1),
    Sketcher.Constraint("Coincident", 1, 3, -1, 1),
    Sketcher.Constraint("Diameter", 0, 22.0),
    Sketcher.Constraint("Diameter", 1, 2.0),
])
sketch7.setExpression("Constraints[2]", "Params.sketch7_diameter")
sketch7.setExpression("Constraints[3]", "Params.sketch7_diameter2")
pad5 = doc.addObject("PartDesign::Pad", "Pad004")
body.addObject(pad5)
pad5.Profile = sketch7
pad5.setExpression("Length", "Params.pad5_length")
pad5.Reversed = True

sketch8 = doc.addObject("Sketcher::SketchObject", "Sketch007")
body.addObject(sketch8)
sketch8.AttachmentSupport = (doc.XY_Plane, [""])
sketch8.MapMode = "FlatFace"
sketch8.AttachmentOffset = App.Placement(Vector(0, 0, 8), App.Rotation())
sketch8.addGeometry([
    Part.ArcOfCircle(Part.Circle(Vector(0, 0, 0), Vector(0, 0, 1), 8.7), math.radians(86.72), math.radians(93.28)),
    Part.ArcOfCircle(Part.Circle(Vector(4.5, 8.3, 0), Vector(0, 0, 1), 4), math.radians(138), math.radians(173)),
    Part.ArcOfCircle(Part.Circle(Vector(0, 0, 0), Vector(0, 0, 1), 11), math.radians(82.26), math.radians(97.74)),
    Part.ArcOfCircle(Part.Circle(Vector(-4.5, 8.3, 0), Vector(0, 0, 1), 4), math.radians(7), math.radians(42)),
], False)
sketch8.addConstraint([
    Sketcher.Constraint("Coincident", 0, 1, 1, 2),
    Sketcher.Constraint("Coincident", 1, 1, 2, 1),
    Sketcher.Constraint("Coincident", 2, 2, 3, 2),
    Sketcher.Constraint("Coincident", 3, 1, 0, 2),
    Sketcher.Constraint("Coincident", 0, 3, -1, 1),
    Sketcher.Constraint("Coincident", 2, 3, -1, 1),
    Sketcher.Constraint("Equal", 1, 3),
    Sketcher.Constraint("Symmetric", 1, 3, 3, 3, -2),
    Sketcher.Constraint("Radius", 1, 4.0),
    Sketcher.Constraint("Radius", 0, 8.749),
    Sketcher.Constraint("Radius", 2, 11.0254),
    Sketcher.Constraint("DistanceX", -1, 1, 1, 3, 4.47219),
    Sketcher.Constraint("DistanceY", -1, 1, 1, 1, 10.92491),
])
sketch8.setExpression("Constraints[8]", "Params.sketch8_radius")
pocket3 = doc.addObject("PartDesign::Pocket", "Pocket002")
body.addObject(pocket3)
pocket3.Profile = sketch8
pocket3.setExpression("Length", "Params.pocket3_length")
doc.recompute()

polarpattern2 = doc.addObject("PartDesign::PolarPattern", "PolarPattern001")
body.addObject(polarpattern2)
polarpattern2.Originals = [pocket3]
polarpattern2.Axis = (doc.Z_Axis, [""])
polarpattern2.Angle = 360
polarpattern2.Occurrences = 20
body.Tip = polarpattern2

sketch9 = doc.addObject("Sketcher::SketchObject", "Sketch008")
body.addObject(sketch9)
sketch9.AttachmentSupport = (doc.XY_Plane, [""])
sketch9.MapMode = "FlatFace"
sketch9.AttachmentOffset = App.Placement(Vector(0, 0, 8), App.Rotation())
add_polygon(sketch9, [(-3, 21), (3, 4), (19, 3), (14, 15)])
sketch9.addConstraint([
    Sketcher.Constraint("Distance", 0, 18.181981),
    Sketcher.Constraint("DistanceX", -1, 1, 0, 2, 2.881492),
    Sketcher.Constraint("DistanceY", -1, 1, 1, 2, 2.995842),
    Sketcher.Constraint("DistanceX", -1, 1, 2, 2, 14.48035),
    Sketcher.Constraint("DistanceY", -1, 1, 2, 2, 14.875561),
    Sketcher.Constraint("DistanceY", -1, 1, 3, 2, 20.998669),
    Sketcher.Constraint("DistanceY", 1, 2, 0, 2, 0.857842),
    Sketcher.Constraint("Distance", 1, 16.298993),
])
pocket4 = doc.addObject("PartDesign::Pocket", "Pocket003")
body.addObject(pocket4)
pocket4.Profile = sketch9
pocket4.Type = "ThroughAll"

doc.recompute()
